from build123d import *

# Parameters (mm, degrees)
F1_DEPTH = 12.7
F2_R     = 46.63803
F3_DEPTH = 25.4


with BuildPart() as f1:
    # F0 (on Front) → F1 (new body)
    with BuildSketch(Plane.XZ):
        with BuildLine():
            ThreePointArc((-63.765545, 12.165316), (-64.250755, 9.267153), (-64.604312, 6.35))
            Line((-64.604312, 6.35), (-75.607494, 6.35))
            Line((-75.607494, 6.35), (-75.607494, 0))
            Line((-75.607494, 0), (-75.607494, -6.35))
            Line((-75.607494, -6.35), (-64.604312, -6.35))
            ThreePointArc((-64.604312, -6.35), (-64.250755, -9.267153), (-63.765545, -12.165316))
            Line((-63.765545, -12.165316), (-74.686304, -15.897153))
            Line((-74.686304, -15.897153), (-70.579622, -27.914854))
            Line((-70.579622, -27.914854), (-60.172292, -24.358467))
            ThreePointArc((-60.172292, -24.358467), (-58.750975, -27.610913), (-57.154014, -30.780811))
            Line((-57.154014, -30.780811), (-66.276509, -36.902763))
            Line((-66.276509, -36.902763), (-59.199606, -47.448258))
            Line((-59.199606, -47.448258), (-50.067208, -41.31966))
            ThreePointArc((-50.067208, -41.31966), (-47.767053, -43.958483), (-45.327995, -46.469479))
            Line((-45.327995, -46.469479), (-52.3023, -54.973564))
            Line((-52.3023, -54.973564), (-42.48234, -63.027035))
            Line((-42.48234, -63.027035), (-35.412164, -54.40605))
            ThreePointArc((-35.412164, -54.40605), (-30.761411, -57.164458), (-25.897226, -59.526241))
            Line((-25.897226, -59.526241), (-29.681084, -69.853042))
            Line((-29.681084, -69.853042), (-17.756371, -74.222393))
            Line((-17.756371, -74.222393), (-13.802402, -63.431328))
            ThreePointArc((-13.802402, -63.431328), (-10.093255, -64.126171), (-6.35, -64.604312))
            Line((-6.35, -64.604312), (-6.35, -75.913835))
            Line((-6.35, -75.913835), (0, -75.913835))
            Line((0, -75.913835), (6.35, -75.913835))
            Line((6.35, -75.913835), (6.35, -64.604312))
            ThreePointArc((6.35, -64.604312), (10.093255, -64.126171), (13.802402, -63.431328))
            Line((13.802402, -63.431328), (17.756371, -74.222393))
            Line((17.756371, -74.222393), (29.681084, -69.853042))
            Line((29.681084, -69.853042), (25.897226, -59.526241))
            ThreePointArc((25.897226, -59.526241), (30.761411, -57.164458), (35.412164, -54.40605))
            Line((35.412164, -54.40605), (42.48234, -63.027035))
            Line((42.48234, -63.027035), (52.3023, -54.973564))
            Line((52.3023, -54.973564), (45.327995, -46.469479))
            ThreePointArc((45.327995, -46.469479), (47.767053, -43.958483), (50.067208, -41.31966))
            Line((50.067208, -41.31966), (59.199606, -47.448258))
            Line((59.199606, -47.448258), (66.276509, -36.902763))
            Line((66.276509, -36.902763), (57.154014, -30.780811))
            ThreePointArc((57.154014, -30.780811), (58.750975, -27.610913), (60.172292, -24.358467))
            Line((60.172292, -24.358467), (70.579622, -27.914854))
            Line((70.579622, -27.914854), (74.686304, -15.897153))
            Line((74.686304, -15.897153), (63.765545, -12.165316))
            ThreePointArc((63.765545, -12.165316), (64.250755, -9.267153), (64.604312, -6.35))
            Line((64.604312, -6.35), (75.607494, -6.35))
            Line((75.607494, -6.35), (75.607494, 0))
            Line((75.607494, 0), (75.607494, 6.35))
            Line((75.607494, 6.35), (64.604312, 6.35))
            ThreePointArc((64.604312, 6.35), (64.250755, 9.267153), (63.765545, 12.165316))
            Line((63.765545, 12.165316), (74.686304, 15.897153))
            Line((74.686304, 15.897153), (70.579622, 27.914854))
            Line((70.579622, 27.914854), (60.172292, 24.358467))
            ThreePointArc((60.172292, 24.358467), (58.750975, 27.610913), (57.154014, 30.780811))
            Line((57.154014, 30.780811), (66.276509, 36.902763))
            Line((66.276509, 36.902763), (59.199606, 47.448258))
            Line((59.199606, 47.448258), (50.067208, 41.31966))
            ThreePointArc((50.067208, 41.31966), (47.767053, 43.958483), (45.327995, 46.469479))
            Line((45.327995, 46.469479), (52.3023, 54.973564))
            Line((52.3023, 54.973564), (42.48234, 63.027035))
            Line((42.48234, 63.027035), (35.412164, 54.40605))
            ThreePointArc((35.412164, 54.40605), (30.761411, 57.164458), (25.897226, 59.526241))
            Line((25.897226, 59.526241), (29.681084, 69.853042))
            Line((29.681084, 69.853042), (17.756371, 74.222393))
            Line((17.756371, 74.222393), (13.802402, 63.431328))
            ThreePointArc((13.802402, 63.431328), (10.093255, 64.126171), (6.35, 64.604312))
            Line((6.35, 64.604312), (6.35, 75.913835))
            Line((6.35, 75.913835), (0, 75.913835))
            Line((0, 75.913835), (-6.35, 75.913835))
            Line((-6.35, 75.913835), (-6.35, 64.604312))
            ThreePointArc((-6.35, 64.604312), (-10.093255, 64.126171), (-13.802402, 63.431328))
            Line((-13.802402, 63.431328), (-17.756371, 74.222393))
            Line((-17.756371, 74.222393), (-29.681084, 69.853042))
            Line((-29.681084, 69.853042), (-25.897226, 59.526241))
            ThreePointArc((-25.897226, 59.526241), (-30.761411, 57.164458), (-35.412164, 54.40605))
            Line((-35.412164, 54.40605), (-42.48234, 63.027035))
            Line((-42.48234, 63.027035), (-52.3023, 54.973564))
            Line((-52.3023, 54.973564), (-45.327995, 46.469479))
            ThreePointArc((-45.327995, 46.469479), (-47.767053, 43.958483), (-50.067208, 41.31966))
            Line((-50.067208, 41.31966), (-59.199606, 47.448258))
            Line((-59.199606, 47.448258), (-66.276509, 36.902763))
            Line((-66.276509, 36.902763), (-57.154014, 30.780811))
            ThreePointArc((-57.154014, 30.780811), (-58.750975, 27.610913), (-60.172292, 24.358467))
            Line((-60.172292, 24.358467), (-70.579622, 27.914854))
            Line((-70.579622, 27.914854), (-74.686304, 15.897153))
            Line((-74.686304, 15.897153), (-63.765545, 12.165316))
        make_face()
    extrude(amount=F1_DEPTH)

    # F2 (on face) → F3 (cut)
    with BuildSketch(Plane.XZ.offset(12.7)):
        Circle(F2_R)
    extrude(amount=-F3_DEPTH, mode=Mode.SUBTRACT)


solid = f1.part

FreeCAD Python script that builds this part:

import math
import FreeCAD as App
import Part
import Sketcher

V = App.Vector
Q = App.Units.Quantity

doc = App.newDocument("Part")
body = doc.addObject("PartDesign::Body", "Body")

# Sketch on XZ plane
sketch1 = doc.addObject("Sketcher::SketchObject", "Sketch")
body.addObject(sketch1)
sketch1.AttachmentSupport = (doc.XZ_Plane, [""])
sketch1.MapMode = "FlatFace"
sketch1.addGeometry(Part.ArcOfCircle(Part.Circle(V(0, 0, 0), V(0, 0, 1), 65), math.radians(169.2), math.radians(174.39)), False)
sketch1.addGeometry(Part.LineSegment(V(-65, 6, 0), V(-76, 6, 0)), False)
sketch1.addGeometry(Part.LineSegment(V(-76, 6, 0), V(-76, -6, 0)), False)
sketch1.addGeometry(Part.LineSegment(V(-76, -6, 0), V(-65, -6, 0)), False)
sketch1.addGeometry(Part.ArcOfCircle(Part.Circle(V(0, 0, 0), V(0, 0, 1), 65), math.radians(-174.39), math.radians(-169.2)), False)
sketch1.addGeometry(Part.LineSegment(V(-64, -12, 0), V(-75, -16, 0)), False)
sketch1.addGeometry(Part.LineSegment(V(-75, -16, 0), V(-71, -28, 0)), False)
sketch1.addGeometry(Part.LineSegment(V(-71, -28, 0), V(-60, -24, 0)), False)
sketch1.addGeometry(Part.ArcOfCircle(Part.Circle(V(0, 0, 0), V(0, 0, 1), 65), math.radians(-157.96), math.radians(-151.69)), False)
sketch1.addGeometry(Part.LineSegment(V(-57, -31, 0), V(-66, -37, 0)), False)
sketch1.addGeometry(Part.LineSegment(V(-66, -37, 0), V(-59, -47, 0)), False)
sketch1.addGeometry(Part.LineSegment(V(-59, -47, 0), V(-50, -41, 0)), False)
sketch1.addGeometry(Part.ArcOfCircle(Part.Circle(V(0, 0, 0), V(0, 0, 1), 65), math.radians(-140.47), math.radians(-134.29)), False)
sketch1.addGeometry(Part.LineSegment(V(-45, -46, 0), V(-52, -55, 0)), False)
sketch1.addGeometry(Part.LineSegment(V(-52, -55, 0), V(-42, -63, 0)), False)
sketch1.addGeometry(Part.LineSegment(V(-42, -63, 0), V(-35, -54, 0)), False)
sketch1.addGeometry(Part.ArcOfCircle(Part.Circle(V(0, 0, 0), V(0, 0, 1), 65), math.radians(-123.06), math.radians(-113.51)), False)
sketch1.addGeometry(Part.LineSegment(V(-26, -60, 0), V(-30, -70, 0)), False)
sketch1.addGeometry(Part.LineSegment(V(-30, -70, 0), V(-18, -74, 0)), False)
sketch1.addGeometry(Part.LineSegment(V(-18, -74, 0), V(-14, -63, 0)), False)
sketch1.addGeometry(Part.ArcOfCircle(Part.Circle(V(0, 0, 0), V(0, 0, 1), 65), math.radians(-102.28), math.radians(-95.61)), False)
sketch1.addGeometry(Part.LineSegment(V(-6, -65, 0), V(-6, -76, 0)), False)
sketch1.addGeometry(Part.LineSegment(V(-6, -76, 0), V(6, -76, 0)), False)
sketch1.addGeometry(Part.LineSegment(V(6, -76, 0), V(6, -65, 0)), False)
sketch1.addGeometry(Part.ArcOfCircle(Part.Circle(V(0, 0, 0), V(0, 0, 1), 65), math.radians(-84.39), math.radians(-77.72)), False)
sketch1.addGeometry(Part.LineSegment(V(14, -63, 0), V(18, -74, 0)), False)
sketch1.addGeometry(Part.LineSegment(V(18, -74, 0), V(30, -70, 0)), False)
sketch1.addGeometry(Part.LineSegment(V(30, -70, 0), V(26, -60, 0)), False)
sketch1.addGeometry(Part.ArcOfCircle(Part.Circle(V(0, 0, 0), V(0, 0, 1), 65), math.radians(-66.49), math.radians(-56.94)), False)
sketch1.addGeometry(Part.LineSegment(V(35, -54, 0), V(42, -63, 0)), False)
sketch1.addGeometry(Part.LineSegment(V(42, -63, 0), V(52, -55, 0)), False)
sketch1.addGeometry(Part.LineSegment(V(52, -55, 0), V(45, -46, 0)), False)
sketch1.addGeometry(Part.ArcOfCircle(Part.Circle(V(0, 0, 0), V(0, 0, 1), 65), math.radians(-45.71), math.radians(-39.53)), False)
sketch1.addGeometry(Part.LineSegment(V(50, -41, 0), V(59, -47, 0)), False)
sketch1.addGeometry(Part.LineSegment(V(59, -47, 0), V(66, -37, 0)), False)
sketch1.addGeometry(Part.LineSegment(V(66, -37, 0), V(57, -31, 0)), False)
sketch1.addGeometry(Part.ArcOfCircle(Part.Circle(V(0, 0, 0), V(0, 0, 1), 65), math.radians(-28.31), math.radians(-22.04)), False)
sketch1.addGeometry(Part.LineSegment(V(60, -24, 0), V(71, -28, 0)), False)
sketch1.addGeometry(Part.LineSegment(V(71, -28, 0), V(75, -16, 0)), False)
sketch1.addGeometry(Part.LineSegment(V(75, -16, 0), V(64, -12, 0)), False)
sketch1.addGeometry(Part.ArcOfCircle(Part.Circle(V(0, 0, 0), V(0, 0, 1), 65), math.radians(-10.8), math.radians(-5.61)), False)
sketch1.addGeometry(Part.LineSegment(V(65, -6, 0), V(76, -6, 0)), False)
sketch1.addGeometry(Part.LineSegment(V(76, -6, 0), V(76, 6, 0)), False)
sketch1.addGeometry(Part.LineSegment(V(76, 6, 0), V(65, 6, 0)), False)
sketch1.addGeometry(Part.ArcOfCircle(Part.Circle(V(0, 0, 0), V(0, 0, 1), 65), math.radians(5.61), math.radians(10.8)), False)
sketch1.addGeometry(Part.LineSegment(V(64, 12, 0), V(75, 16, 0)), False)
sketch1.addGeometry(Part.LineSegment(V(75, 16, 0), V(71, 28, 0)), False)
sketch1.addGeometry(Part.LineSegment(V(71, 28, 0), V(60, 24, 0)), False)
sketch1.addGeometry(Part.ArcOfCircle(Part.Circle(V(0, 0, 0), V(0, 0, 1), 65), math.radians(22.04), math.radians(28.31)), False)
sketch1.addGeometry(Part.LineSegment(V(57, 31, 0), V(66, 37, 0)), False)
sketch1.addGeometry(Part.LineSegment(V(66, 37, 0), V(59, 47, 0)), False)
sketch1.addGeometry(Part.LineSegment(V(59, 47, 0), V(50, 41, 0)), False)
sketch1.addGeometry(Part.ArcOfCircle(Part.Circle(V(0, 0, 0), V(0, 0, 1), 65), math.radians(39.53), math.radians(45.71)), False)
sketch1.addGeometry(Part.LineSegment(V(45, 46, 0), V(52, 55, 0)), False)
sketch1.addGeometry(Part.LineSegment(V(52, 55, 0), V(42, 63, 0)), False)
sketch1.addGeometry(Part.LineSegment(V(42, 63, 0), V(35, 54, 0)), False)
sketch1.addGeometry(Part.ArcOfCircle(Part.Circle(V(0, 0, 0), V(0, 0, 1), 65), math.radians(56.94), math.radians(66.49)), False)
sketch1.addGeometry(Part.LineSegment(V(26, 60, 0), V(30, 70, 0)), False)
sketch1.addGeometry(Part.LineSegment(V(30, 70, 0), V(18, 74, 0)), False)
sketch1.addGeometry(Part.LineSegment(V(18, 74, 0), V(14, 63, 0)), False)
sketch1.addGeometry(Part.ArcOfCircle(Part.Circle(V(0, 0, 0), V(0, 0, 1), 65), math.radians(77.72), math.radians(84.39)), False)
sketch1.addGeometry(Part.LineSegment(V(6, 65, 0), V(6, 76, 0)), False)
sketch1.addGeometry(Part.LineSegment(V(6, 76, 0), V(-6, 76, 0)), False)
sketch1.addGeometry(Part.LineSegment(V(-6, 76, 0), V(-6, 65, 0)), False)
sketch1.addGeometry(Part.ArcOfCircle(Part.Circle(V(0, 0, 0), V(0, 0, 1), 65), math.radians(95.61), math.radians(102.28)), False)
sketch1.addGeometry(Part.LineSegment(V(-14, 63, 0), V(-18, 74, 0)), False)
sketch1.addGeometry(Part.LineSegment(V(-18, 74, 0), V(-30, 70, 0)), False)
sketch1.addGeometry(Part.LineSegment(V(-30, 70, 0), V(-26, 60, 0)), False)
sketch1.addGeometry(Part.ArcOfCircle(Part.Circle(V(0, 0, 0), V(0, 0, 1), 65), math.radians(113.51), math.radians(123.06)), False)
sketch1.addGeometry(Part.LineSegment(V(-35, 54, 0), V(-42, 63, 0)), False)
sketch1.addGeometry(Part.LineSegment(V(-42, 63, 0), V(-52, 55, 0)), False)
sketch1.addGeometry(Part.LineSegment(V(-52, 55, 0), V(-45, 46, 0)), False)
sketch1.addGeometry(Part.ArcOfCircle(Part.Circle(V(0, 0, 0), V(0, 0, 1), 65), math.radians(134.29), math.radians(140.47)), False)
sketch1.addGeometry(Part.LineSegment(V(-50, 41, 0), V(-59, 47, 0)), False)
sketch1.addGeometry(Part.LineSegment(V(-59, 47, 0), V(-66, 37, 0)), False)
sketch1.addGeometry(Part.LineSegment(V(-66, 37, 0), V(-57, 31, 0)), False)
sketch1.addGeometry(Part.ArcOfCircle(Part.Circle(V(0, 0, 0), V(0, 0, 1), 65), math.radians(151.69), math.radians(157.96)), False)
sketch1.addGeometry(Part.LineSegment(V(-60, 24, 0), V(-71, 28, 0)), False)
sketch1.addGeometry(Part.LineSegment(V(-71, 28, 0), V(-75, 16, 0)), False)
sketch1.addGeometry(Part.LineSegment(V(-75, 16, 0), V(-64, 12, 0)), False)
sketch1.addConstraint(Sketcher.Constraint("Coincident", 0, 2, 1, 1))
sketch1.addConstraint(Sketcher.Constraint("Coincident", 1, 2, 2, 1))
sketch1.addConstraint(Sketcher.Constraint("Coincident", 2, 2, 3, 1))
sketch1.addConstraint(Sketcher.Constraint("Coincident", 3, 2, 4, 1))
sketch1.addConstraint(Sketcher.Constraint("Coincident", 4, 2, 5, 1))
sketch1.addConstraint(Sketcher.Constraint("Coincident", 5, 2, 6, 1))
sketch1.addConstraint(Sketcher.Constraint("Coincident", 6, 2, 7, 1))
sketch1.addConstraint(Sketcher.Constraint("Coincident", 7, 2, 8, 1))
sketch1.addConstraint(Sketcher.Constraint("Coincident", 8, 2, 9, 1))
sketch1.addConstraint(Sketcher.Constraint("Coincident", 9, 2, 10, 1))
sketch1.addConstraint(Sketcher.Constraint("Coincident", 10, 2, 11, 1))
sketch1.addConstraint(Sketcher.Constraint("Coincident", 11, 2, 12, 1))
sketch1.addConstraint(Sketcher.Constraint("Coincident", 12, 2, 13, 1))
sketch1.addConstraint(Sketcher.Constraint("Coincident", 13, 2, 14, 1))
sketch1.addConstraint(Sketcher.Constraint("Coincident", 14, 2, 15, 1))
sketch1.addConstraint(Sketcher.Constraint("Coincident", 15, 2, 16, 1))
sketch1.addConstraint(Sketcher.Constraint("Coincident", 16, 2, 17, 1))
sketch1.addConstraint(Sketcher.Constraint("Coincident", 17, 2, 18, 1))
sketch1.addConstraint(Sketcher.Constraint("Coincident", 18, 2, 19, 1))
sketch1.addConstraint(Sketcher.Constraint("Coincident", 19, 2, 20, 1))
sketch1.addConstraint(Sketcher.Constraint("Coincident", 20, 2, 21, 1))
sketch1.addConstraint(Sketcher.Constraint("Coincident", 21, 2, 22, 1))
sketch1.addConstraint(Sketcher.Constraint("Coincident", 22, 2, 23, 1))
sketch1.addConstraint(Sketcher.Constraint("Coincident", 23, 2, 24, 1))
sketch1.addConstraint(Sketcher.Constraint("Coincident", 24, 2, 25, 1))
sketch1.addConstraint(Sketcher.Constraint("Coincident", 25, 2, 26, 1))
sketch1.addConstraint(Sketcher.Constraint("Coincident", 26, 2, 27, 1))
sketch1.addConstraint(Sketcher.Constraint("Coincident", 27, 2, 28, 1))
sketch1.addConstraint(Sketcher.Constraint("Coincident", 28, 2, 29, 1))
sketch1.addConstraint(Sketcher.Constraint("Coincident", 29, 2, 30, 1))
sketch1.addConstraint(Sketcher.Constraint("Coincident", 30, 2, 31, 1))
sketch1.addConstraint(Sketcher.Constraint("Coincident", 31, 2, 32, 1))
sketch1.addConstraint(Sketcher.Constraint("Coincident", 32, 2, 33, 1))
sketch1.addConstraint(Sketcher.Constraint("Coincident", 33, 2, 34, 1))
sketch1.addConstraint(Sketcher.Constraint("Coincident", 34, 2, 35, 1))
sketch1.addConstraint(Sketcher.Constraint("Coincident", 35, 2, 36, 1))
sketch1.addConstraint(Sketcher.Constraint("Coincident", 36, 2, 37, 1))
sketch1.addConstraint(Sketcher.Constraint("Coincident", 37, 2, 38, 1))
sketch1.addConstraint(Sketcher.Constraint("Coincident", 38, 2, 39, 1))
sketch1.addConstraint(Sketcher.Constraint("Coincident", 39, 2, 40, 1))
sketch1.addConstraint(Sketcher.Constraint("Coincident", 40, 2, 41, 1))
sketch1.addConstraint(Sketcher.Constraint("Coincident", 41, 2, 42, 1))
sketch1.addConstraint(Sketcher.Constraint("Coincident", 42, 2, 43, 1))
sketch1.addConstraint(Sketcher.Constraint("Coincident", 43, 2, 44, 1))
sketch1.addConstraint(Sketcher.Constraint("Coincident", 44, 2, 45, 1))
sketch1.addConstraint(Sketcher.Constraint("Coincident", 45, 2, 46, 1))
sketch1.addConstraint(Sketcher.Constraint("Coincident", 46, 2, 47, 1))
sketch1.addConstraint(Sketcher.Constraint("Coincident", 47, 2, 48, 1))
sketch1.addConstraint(Sketcher.Constraint("Coincident", 48, 2, 49, 1))
sketch1.addConstraint(Sketcher.Constraint("Coincident", 49, 2, 50, 1))
sketch1.addConstraint(Sketcher.Constraint("Coincident", 50, 2, 51, 1))
sketch1.addConstraint(Sketcher.Constraint("Coincident", 51, 2, 52, 1))
sketch1.addConstraint(Sketcher.Constraint("Coincident", 52, 2, 53, 1))
sketch1.addConstraint(Sketcher.Constraint("Coincident", 53, 2, 54, 1))
sketch1.addConstraint(Sketcher.Constraint("Coincident", 54, 2, 55, 1))
sketch1.addConstraint(Sketcher.Constraint("Coincident", 55, 2, 56, 1))
sketch1.addConstraint(Sketcher.Constraint("Coincident", 56, 2, 57, 1))
sketch1.addConstraint(Sketcher.Constraint("Coincident", 57, 2, 58, 1))
sketch1.addConstraint(Sketcher.Constraint("Coincident", 58, 2, 59, 1))
sketch1.addConstraint(Sketcher.Constraint("Coincident", 59, 2, 60, 1))
sketch1.addConstraint(Sketcher.Constraint("Coincident", 60, 2, 61, 1))
sketch1.addConstraint(Sketcher.Constraint("Coincident", 61, 2, 62, 1))
sketch1.addConstraint(Sketcher.Constraint("Coincident", 62, 2, 63, 1))
sketch1.addConstraint(Sketcher.Constraint("Coincident", 63, 2, 64, 1))
sketch1.addConstraint(Sketcher.Constraint("Coincident", 64, 2, 65, 1))
sketch1.addConstraint(Sketcher.Constraint("Coincident", 65, 2, 66, 1))
sketch1.addConstraint(Sketcher.Constraint("Coincident", 66, 2, 67, 1))
sketch1.addConstraint(Sketcher.Constraint("Coincident", 67, 2, 68, 1))
sketch1.addConstraint(Sketcher.Constraint("Coincident", 68, 2, 69, 1))
sketch1.addConstraint(Sketcher.Constraint("Coincident", 69, 2, 70, 1))
sketch1.addConstraint(Sketcher.Constraint("Coincident", 70, 2, 71, 1))
sketch1.addConstraint(Sketcher.Constraint("Coincident", 71, 2, 72, 1))
sketch1.addConstraint(Sketcher.Constraint("Coincident", 72, 2, 73, 1))
sketch1.addConstraint(Sketcher.Constraint("Coincident", 73, 2, 74, 1))
sketch1.addConstraint(Sketcher.Constraint("Coincident", 74, 2, 75, 1))
sketch1.addConstraint(Sketcher.Constraint("Coincident", 75, 2, 76, 1))
sketch1.addConstraint(Sketcher.Constraint("Coincident", 76, 2, 77, 1))
sketch1.addConstraint(Sketcher.Constraint("Coincident", 77, 2, 78, 1))
sketch1.addConstraint(Sketcher.Constraint("Coincident", 78, 2, 79, 1))
sketch1.addConstraint(Sketcher.Constraint("Coincident", 79, 2, 0, 1))
sketch1.addConstraint(Sketcher.Constraint("Horizontal", 1))
sketch1.addConstraint(Sketcher.Constraint("Vertical", 2))
sketch1.addConstraint(Sketcher.Constraint("Horizontal", 3))
sketch1.addConstraint(Sketcher.Constraint("Vertical", 21))
sketch1.addConstraint(Sketcher.Constraint("Horizontal", 22))
sketch1.addConstraint(Sketcher.Constraint("Vertical", 23))
sketch1.addConstraint(Sketcher.Constraint("Horizontal", 41))
sketch1.addConstraint(Sketcher.Constraint("Vertical", 42))
sketch1.addConstraint(Sketcher.Constraint("Horizontal", 43))
sketch1.addConstraint(Sketcher.Constraint("Vertical", 61))
sketch1.addConstraint(Sketcher.Constraint("Horizontal", 62))
sketch1.addConstraint(Sketcher.Constraint("Vertical", 63))
sketch1.addConstraint(Sketcher.Constraint("Coincident", 28, 3, 16, 3))
sketch1.addConstraint(Sketcher.Constraint("Coincident", 68, 3, 56, 3))
sketch1.addConstraint(Sketcher.Constraint("Equal", 0, 4))
sketch1.addConstraint(Sketcher.Constraint("Equal", 20, 24))
sketch1.addConstraint(Sketcher.Constraint("Equal", 16, 28))
sketch1.addConstraint(Sketcher.Constraint("Equal", 12, 32))
sketch1.addConstraint(Sketcher.Constraint("Equal", 8, 36))
sketch1.addConstraint(Sketcher.Constraint("Equal", 4, 40))
sketch1.addConstraint(Sketcher.Constraint("Equal", 40, 44))
sketch1.addConstraint(Sketcher.Constraint("Equal", 36, 48))
sketch1.addConstraint(Sketcher.Constraint("Equal", 32, 52))
sketch1.addConstraint(Sketcher.Constraint("Equal", 28, 56))
sketch1.addConstraint(Sketcher.Constraint("Equal", 24, 60))
sketch1.addConstraint(Sketcher.Constraint("Equal", 60, 64))
sketch1.addConstraint(Sketcher.Constraint("Equal", 56, 68))
sketch1.addConstraint(Sketcher.Constraint("Equal", 52, 72))
sketch1.addConstraint(Sketcher.Constraint("Equal", 48, 76))
sketch1.addConstraint(Sketcher.Constraint("Symmetric", 0, 3, 40, 3, -1, 1))
sketch1.addConstraint(Sketcher.Constraint("Symmetric", 4, 3, 44, 3, -1, 1))
sketch1.addConstraint(Sketcher.Constraint("Symmetric", 8, 3, 48, 3, -1, 1))
sketch1.addConstraint(Sketcher.Constraint("Symmetric", 12, 3, 52, 3, -1, 1))
sketch1.addConstraint(Sketcher.Constraint("Symmetric", 16, 3, 56, 3, -1, 1))
sketch1.addConstraint(Sketcher.Constraint("Symmetric", 20, 3, 60, 3, -1, 1))
sketch1.addConstraint(Sketcher.Constraint("Symmetric", 24, 3, 64, 3, -1, 1))
sketch1.addConstraint(Sketcher.Constraint("Symmetric", 32, 3, 72, 3, -1, 1))
sketch1.addConstraint(Sketcher.Constraint("Symmetric", 36, 3, 76, 3, -1, 1))
sketch1.addConstraint(Sketcher.Constraint("Symmetric", 1, 2, 41, 2, -1, 1))
sketch1.addConstraint(Sketcher.Constraint("Symmetric", 5, 2, 45, 2, -1, 1))
sketch1.addConstraint(Sketcher.Constraint("Symmetric", 6, 2, 46, 2, -1, 1))
sketch1.addConstraint(Sketcher.Constraint("Symmetric", 9, 2, 49, 2, -1, 1))
sketch1.addConstraint(Sketcher.Constraint("Symmetric", 10, 2, 50, 2, -1, 1))
sketch1.addConstraint(Sketcher.Constraint("Symmetric", 13, 2, 53, 2, -1, 1))
sketch1.addConstraint(Sketcher.Constraint("Symmetric", 14, 2, 54, 2, -1, 1))
sketch1.addConstraint(Sketcher.Constraint("Symmetric", 17, 2, 57, 2, -1, 1))
sketch1.addConstraint(Sketcher.Constraint("Symmetric", 18, 2, 58, 2, -1, 1))
sketch1.addConstraint(Sketcher.Constraint("Symmetric", 21, 2, 61, 2, -1, 1))
sketch1.addConstraint(Sketcher.Constraint("Symmetric", 25, 2, 65, 2, -1, 1))
sketch1.addConstraint(Sketcher.Constraint("Symmetric", 26, 2, 66, 2, -1, 1))
sketch1.addConstraint(Sketcher.Constraint("Symmetric", 29, 2, 69, 2, -1, 1))
sketch1.addConstraint(Sketcher.Constraint("Symmetric", 30, 2, 70, 2, -1, 1))
sketch1.addConstraint(Sketcher.Constraint("Symmetric", 33, 2, 73, 2, -1, 1))
sketch1.addConstraint(Sketcher.Constraint("Symmetric", 34, 2, 74, 2, -1, 1))
sketch1.addConstraint(Sketcher.Constraint("Symmetric", 37, 2, 77, 2, -1, 1))
sketch1.addConstraint(Sketcher.Constraint("Symmetric", 38, 2, 78, 2, -1, 1))
sketch1.addConstraint(Sketcher.Constraint("Symmetric", 20, 3, 24, 3, -2))
sketch1.addConstraint(Sketcher.Constraint("Symmetric", 12, 3, 32, 3, -2))
sketch1.addConstraint(Sketcher.Constraint("Symmetric", 8, 3, 36, 3, -2))
sketch1.addConstraint(Sketcher.Constraint("Symmetric", 4, 3, 40, 3, -2))
sketch1.addConstraint(Sketcher.Constraint("Symmetric", 18, 2, 25, 2, -2))
sketch1.addConstraint(Sketcher.Constraint("Symmetric", 17, 2, 26, 2, -2))
sketch1.addConstraint(Sketcher.Constraint("Symmetric", 16, 2, 27, 2, -2))
sketch1.addConstraint(Sketcher.Constraint("Symmetric", 14, 2, 29, 2, -2))
sketch1.addConstraint(Sketcher.Constraint("Symmetric", 13, 2, 30, 2, -2))
sketch1.addConstraint(Sketcher.Constraint("Symmetric", 10, 2, 33, 2, -2))
sketch1.addConstraint(Sketcher.Constraint("Symmetric", 9, 2, 34, 2, -2))
sketch1.addConstraint(Sketcher.Constraint("Symmetric", 6, 2, 37, 2, -2))
sketch1.addConstraint(Sketcher.Constraint("Symmetric", 5, 2, 38, 2, -2))
sketch1.addConstraint(Sketcher.Constraint("Perpendicular", 5, 6))
sketch1.addConstraint(Sketcher.Constraint("Perpendicular", 6, 7))
sketch1.addConstraint(Sketcher.Constraint("Perpendicular", 9, 10))
sketch1.addConstraint(Sketcher.Constraint("Perpendicular", 10, 11))
sketch1.addConstraint(Sketcher.Constraint("Perpendicular", 13, 14))
sketch1.addConstraint(Sketcher.Constraint("Perpendicular", 14, 15))
sketch1.addConstraint(Sketcher.Constraint("Perpendicular", 17, 18))
sketch1.addConstraint(Sketcher.Constraint("Perpendicular", 18, 19))
sketch1.addConstraint(Sketcher.Constraint("Perpendicular", 25, 26))
sketch1.addConstraint(Sketcher.Constraint("Perpendicular", 29, 30))
sketch1.addConstraint(Sketcher.Constraint("Perpendicular", 30, 31))
sketch1.addConstraint(Sketcher.Constraint("Perpendicular", 33, 34))
sketch1.addConstraint(Sketcher.Constraint("Perpendicular", 34, 35))
sketch1.addConstraint(Sketcher.Constraint("Perpendicular", 37, 38))
sketch1.addConstraint(Sketcher.Constraint("Perpendicular", 38, 39))
sketch1.addConstraint(Sketcher.Constraint("Parallel", 7, 45))
sketch1.addConstraint(Sketcher.Constraint("Perpendicular", 46, 47))
sketch1.addConstraint(Sketcher.Constraint("Parallel", 11, 49))
sketch1.addConstraint(Sketcher.Constraint("Perpendicular", 50, 51))
sketch1.addConstraint(Sketcher.Constraint("Parallel", 15, 53))
sketch1.addConstraint(Sketcher.Constraint("Perpendicular", 54, 55))
sketch1.addConstraint(Sketcher.Constraint("Parallel", 19, 57))
sketch1.addConstraint(Sketcher.Constraint("Perpendicular", 58, 59))
sketch1.addConstraint(Sketcher.Constraint("Parallel", 27, 65))
sketch1.addConstraint(Sketcher.Constraint("Perpendicular", 66, 67))
sketch1.addConstraint(Sketcher.Constraint("Parallel", 31, 69))
sketch1.addConstraint(Sketcher.Constraint("Perpendicular", 70, 71))
sketch1.addConstraint(Sketcher.Constraint("Parallel", 35, 73))
sketch1.addConstraint(Sketcher.Constraint("Perpendicular", 74, 75))
sketch1.addConstraint(Sketcher.Constraint("Parallel", 39, 77))
sketch1.addConstraint(Sketcher.Constraint("Perpendicular", 78, 79))
sketch1.addConstraint(Sketcher.Constraint("Horizontal", 20, 2, 23, 2))
sketch1.addConstraint(Sketcher.Constraint("Horizontal", 3, 2, 40, 2))
sketch1.addConstraint(Sketcher.Constraint("Horizontal", 1, 2, 42, 2))
sketch1.addConstraint(Sketcher.Constraint("Horizontal", 60, 2, 63, 2))
sketch1.addConstraint(Sketcher.Constraint("Equal", 62, 2))
sketch1.addConstraint(Sketcher.Constraint("Equal", 6, 10))
sketch1.addConstraint(Sketcher.Constraint("Equal", 7, 11))
sketch1.addConstraint(Sketcher.Constraint("Equal", 11, 13))
sketch1.addConstraint(Sketcher.Constraint("Equal", 10, 14))
sketch1.addConstraint(Sketcher.Constraint("Equal", 13, 17))
sketch1.addConstraint(Sketcher.Constraint("Equal", 14, 18))
sketch1.addConstraint(Sketcher.Constraint("DistanceX", 22, 1, 22, 2, Q("0.5 in")))
sketch1.addConstraint(Sketcher.Constraint("Distance", 6, Q("0.5 in")))
sketch1.addConstraint(Sketcher.Constraint("Distance", 7, Q("0.433 in")))
sketch1.addConstraint(Sketcher.Constraint("Radius", 0, 64.915582))
sketch1.addConstraint(Sketcher.Constraint("Radius", 16, 64.915621))
sketch1.addConstraint(Sketcher.Constraint("Radius", 20, 64.91585))
sketch1.addConstraint(Sketcher.Constraint("Radius", 8, 64.915946))
sketch1.addConstraint(Sketcher.Constraint("Radius", 12, 64.915816))
sketch1.addConstraint(Sketcher.Constraint("DistanceX", 13, 2, -1, 1, 52.3023))
sketch1.addConstraint(Sketcher.Constraint("Distance", 5, 11.540779))
sketch1.addConstraint(Sketcher.Constraint("DistanceX", 1, 2, 1, 1, 11.003182))
sketch1.addConstraint(Sketcher.Constraint("DistanceY", 21, 2, 21, 1, 11.309523))
sketch1.addConstraint(Sketcher.Constraint("DistanceX", 3, 2, -1, 1, 64.604312))
sketch1.addConstraint(Sketcher.Constraint("DistanceX", 6, 2, -1, 1, 70.579622))
sketch1.addConstraint(Sketcher.Constraint("DistanceY", 8, 2, -1, 1, 30.780811))
sketch1.addConstraint(Sketcher.Constraint("DistanceX", 9, 2, -1, 1, 66.276509))
sketch1.addConstraint(Sketcher.Constraint("DistanceY", 10, 2, -1, 1, 47.448258))
sketch1.addConstraint(Sketcher.Constraint("DistanceY", 11, 2, -1, 1, 41.31966))
sketch1.addConstraint(Sketcher.Constraint("DistanceY", 12, 2, -1, 1, 46.469479))
sketch1.addConstraint(Sketcher.Constraint("DistanceX", 14, 2, -1, 1, 42.48234))
sketch1.addConstraint(Sketcher.Constraint("DistanceY", 15, 2, -1, 1, 54.40605))
sketch1.addConstraint(Sketcher.Constraint("DistanceY", 16, 2, -1, 1, 59.526241))
sketch1.addConstraint(Sketcher.Constraint("DistanceX", 18, 2, -1, 1, 17.756371))
sketch1.addConstraint(Sketcher.Constraint("DistanceY", 23, 2, -1, 1, 64.604312))
sketch1.addConstraint(Sketcher.Constraint("DistanceY", 24, 2, -1, 1, 63.431328))
sketch1.addConstraint(Sketcher.Constraint("DistanceX", -1, 1, 8, 3, 0.000282))
sketch1.addConstraint(Sketcher.Constraint("DistanceX", 4, 2, -1, 1, 63.765545))
pad1 = doc.addObject("PartDesign::Pad", "Pad")
body.addObject(pad1)
pad1.Profile = sketch1
pad1.Length = Q("0.5 in")

# Sketch on XZ plane
sketch2 = doc.addObject("Sketcher::SketchObject", "Sketch001")
body.addObject(sketch2)
sketch2.AttachmentSupport = (doc.XZ_Plane, [""])
sketch2.MapMode = "FlatFace"
sketch2.AttachmentOffset = App.Placement(V(0, 0, 0.5 * 25.4), App.Rotation())
sketch2.addGeometry(Part.Circle(V(0, 0, 0), V(0, 0, 1), 47), False)
sketch2.addConstraint(Sketcher.Constraint("Coincident", 0, 3, -1, 1))
sketch2.addConstraint(Sketcher.Constraint("Diameter", 0, 93.27606))
pocket1 = doc.addObject("PartDesign::Pocket", "Pocket")
body.addObject(pocket1)
pocket1.Profile = sketch2
pocket1.Length = Q("1 in")

doc.recompute()
